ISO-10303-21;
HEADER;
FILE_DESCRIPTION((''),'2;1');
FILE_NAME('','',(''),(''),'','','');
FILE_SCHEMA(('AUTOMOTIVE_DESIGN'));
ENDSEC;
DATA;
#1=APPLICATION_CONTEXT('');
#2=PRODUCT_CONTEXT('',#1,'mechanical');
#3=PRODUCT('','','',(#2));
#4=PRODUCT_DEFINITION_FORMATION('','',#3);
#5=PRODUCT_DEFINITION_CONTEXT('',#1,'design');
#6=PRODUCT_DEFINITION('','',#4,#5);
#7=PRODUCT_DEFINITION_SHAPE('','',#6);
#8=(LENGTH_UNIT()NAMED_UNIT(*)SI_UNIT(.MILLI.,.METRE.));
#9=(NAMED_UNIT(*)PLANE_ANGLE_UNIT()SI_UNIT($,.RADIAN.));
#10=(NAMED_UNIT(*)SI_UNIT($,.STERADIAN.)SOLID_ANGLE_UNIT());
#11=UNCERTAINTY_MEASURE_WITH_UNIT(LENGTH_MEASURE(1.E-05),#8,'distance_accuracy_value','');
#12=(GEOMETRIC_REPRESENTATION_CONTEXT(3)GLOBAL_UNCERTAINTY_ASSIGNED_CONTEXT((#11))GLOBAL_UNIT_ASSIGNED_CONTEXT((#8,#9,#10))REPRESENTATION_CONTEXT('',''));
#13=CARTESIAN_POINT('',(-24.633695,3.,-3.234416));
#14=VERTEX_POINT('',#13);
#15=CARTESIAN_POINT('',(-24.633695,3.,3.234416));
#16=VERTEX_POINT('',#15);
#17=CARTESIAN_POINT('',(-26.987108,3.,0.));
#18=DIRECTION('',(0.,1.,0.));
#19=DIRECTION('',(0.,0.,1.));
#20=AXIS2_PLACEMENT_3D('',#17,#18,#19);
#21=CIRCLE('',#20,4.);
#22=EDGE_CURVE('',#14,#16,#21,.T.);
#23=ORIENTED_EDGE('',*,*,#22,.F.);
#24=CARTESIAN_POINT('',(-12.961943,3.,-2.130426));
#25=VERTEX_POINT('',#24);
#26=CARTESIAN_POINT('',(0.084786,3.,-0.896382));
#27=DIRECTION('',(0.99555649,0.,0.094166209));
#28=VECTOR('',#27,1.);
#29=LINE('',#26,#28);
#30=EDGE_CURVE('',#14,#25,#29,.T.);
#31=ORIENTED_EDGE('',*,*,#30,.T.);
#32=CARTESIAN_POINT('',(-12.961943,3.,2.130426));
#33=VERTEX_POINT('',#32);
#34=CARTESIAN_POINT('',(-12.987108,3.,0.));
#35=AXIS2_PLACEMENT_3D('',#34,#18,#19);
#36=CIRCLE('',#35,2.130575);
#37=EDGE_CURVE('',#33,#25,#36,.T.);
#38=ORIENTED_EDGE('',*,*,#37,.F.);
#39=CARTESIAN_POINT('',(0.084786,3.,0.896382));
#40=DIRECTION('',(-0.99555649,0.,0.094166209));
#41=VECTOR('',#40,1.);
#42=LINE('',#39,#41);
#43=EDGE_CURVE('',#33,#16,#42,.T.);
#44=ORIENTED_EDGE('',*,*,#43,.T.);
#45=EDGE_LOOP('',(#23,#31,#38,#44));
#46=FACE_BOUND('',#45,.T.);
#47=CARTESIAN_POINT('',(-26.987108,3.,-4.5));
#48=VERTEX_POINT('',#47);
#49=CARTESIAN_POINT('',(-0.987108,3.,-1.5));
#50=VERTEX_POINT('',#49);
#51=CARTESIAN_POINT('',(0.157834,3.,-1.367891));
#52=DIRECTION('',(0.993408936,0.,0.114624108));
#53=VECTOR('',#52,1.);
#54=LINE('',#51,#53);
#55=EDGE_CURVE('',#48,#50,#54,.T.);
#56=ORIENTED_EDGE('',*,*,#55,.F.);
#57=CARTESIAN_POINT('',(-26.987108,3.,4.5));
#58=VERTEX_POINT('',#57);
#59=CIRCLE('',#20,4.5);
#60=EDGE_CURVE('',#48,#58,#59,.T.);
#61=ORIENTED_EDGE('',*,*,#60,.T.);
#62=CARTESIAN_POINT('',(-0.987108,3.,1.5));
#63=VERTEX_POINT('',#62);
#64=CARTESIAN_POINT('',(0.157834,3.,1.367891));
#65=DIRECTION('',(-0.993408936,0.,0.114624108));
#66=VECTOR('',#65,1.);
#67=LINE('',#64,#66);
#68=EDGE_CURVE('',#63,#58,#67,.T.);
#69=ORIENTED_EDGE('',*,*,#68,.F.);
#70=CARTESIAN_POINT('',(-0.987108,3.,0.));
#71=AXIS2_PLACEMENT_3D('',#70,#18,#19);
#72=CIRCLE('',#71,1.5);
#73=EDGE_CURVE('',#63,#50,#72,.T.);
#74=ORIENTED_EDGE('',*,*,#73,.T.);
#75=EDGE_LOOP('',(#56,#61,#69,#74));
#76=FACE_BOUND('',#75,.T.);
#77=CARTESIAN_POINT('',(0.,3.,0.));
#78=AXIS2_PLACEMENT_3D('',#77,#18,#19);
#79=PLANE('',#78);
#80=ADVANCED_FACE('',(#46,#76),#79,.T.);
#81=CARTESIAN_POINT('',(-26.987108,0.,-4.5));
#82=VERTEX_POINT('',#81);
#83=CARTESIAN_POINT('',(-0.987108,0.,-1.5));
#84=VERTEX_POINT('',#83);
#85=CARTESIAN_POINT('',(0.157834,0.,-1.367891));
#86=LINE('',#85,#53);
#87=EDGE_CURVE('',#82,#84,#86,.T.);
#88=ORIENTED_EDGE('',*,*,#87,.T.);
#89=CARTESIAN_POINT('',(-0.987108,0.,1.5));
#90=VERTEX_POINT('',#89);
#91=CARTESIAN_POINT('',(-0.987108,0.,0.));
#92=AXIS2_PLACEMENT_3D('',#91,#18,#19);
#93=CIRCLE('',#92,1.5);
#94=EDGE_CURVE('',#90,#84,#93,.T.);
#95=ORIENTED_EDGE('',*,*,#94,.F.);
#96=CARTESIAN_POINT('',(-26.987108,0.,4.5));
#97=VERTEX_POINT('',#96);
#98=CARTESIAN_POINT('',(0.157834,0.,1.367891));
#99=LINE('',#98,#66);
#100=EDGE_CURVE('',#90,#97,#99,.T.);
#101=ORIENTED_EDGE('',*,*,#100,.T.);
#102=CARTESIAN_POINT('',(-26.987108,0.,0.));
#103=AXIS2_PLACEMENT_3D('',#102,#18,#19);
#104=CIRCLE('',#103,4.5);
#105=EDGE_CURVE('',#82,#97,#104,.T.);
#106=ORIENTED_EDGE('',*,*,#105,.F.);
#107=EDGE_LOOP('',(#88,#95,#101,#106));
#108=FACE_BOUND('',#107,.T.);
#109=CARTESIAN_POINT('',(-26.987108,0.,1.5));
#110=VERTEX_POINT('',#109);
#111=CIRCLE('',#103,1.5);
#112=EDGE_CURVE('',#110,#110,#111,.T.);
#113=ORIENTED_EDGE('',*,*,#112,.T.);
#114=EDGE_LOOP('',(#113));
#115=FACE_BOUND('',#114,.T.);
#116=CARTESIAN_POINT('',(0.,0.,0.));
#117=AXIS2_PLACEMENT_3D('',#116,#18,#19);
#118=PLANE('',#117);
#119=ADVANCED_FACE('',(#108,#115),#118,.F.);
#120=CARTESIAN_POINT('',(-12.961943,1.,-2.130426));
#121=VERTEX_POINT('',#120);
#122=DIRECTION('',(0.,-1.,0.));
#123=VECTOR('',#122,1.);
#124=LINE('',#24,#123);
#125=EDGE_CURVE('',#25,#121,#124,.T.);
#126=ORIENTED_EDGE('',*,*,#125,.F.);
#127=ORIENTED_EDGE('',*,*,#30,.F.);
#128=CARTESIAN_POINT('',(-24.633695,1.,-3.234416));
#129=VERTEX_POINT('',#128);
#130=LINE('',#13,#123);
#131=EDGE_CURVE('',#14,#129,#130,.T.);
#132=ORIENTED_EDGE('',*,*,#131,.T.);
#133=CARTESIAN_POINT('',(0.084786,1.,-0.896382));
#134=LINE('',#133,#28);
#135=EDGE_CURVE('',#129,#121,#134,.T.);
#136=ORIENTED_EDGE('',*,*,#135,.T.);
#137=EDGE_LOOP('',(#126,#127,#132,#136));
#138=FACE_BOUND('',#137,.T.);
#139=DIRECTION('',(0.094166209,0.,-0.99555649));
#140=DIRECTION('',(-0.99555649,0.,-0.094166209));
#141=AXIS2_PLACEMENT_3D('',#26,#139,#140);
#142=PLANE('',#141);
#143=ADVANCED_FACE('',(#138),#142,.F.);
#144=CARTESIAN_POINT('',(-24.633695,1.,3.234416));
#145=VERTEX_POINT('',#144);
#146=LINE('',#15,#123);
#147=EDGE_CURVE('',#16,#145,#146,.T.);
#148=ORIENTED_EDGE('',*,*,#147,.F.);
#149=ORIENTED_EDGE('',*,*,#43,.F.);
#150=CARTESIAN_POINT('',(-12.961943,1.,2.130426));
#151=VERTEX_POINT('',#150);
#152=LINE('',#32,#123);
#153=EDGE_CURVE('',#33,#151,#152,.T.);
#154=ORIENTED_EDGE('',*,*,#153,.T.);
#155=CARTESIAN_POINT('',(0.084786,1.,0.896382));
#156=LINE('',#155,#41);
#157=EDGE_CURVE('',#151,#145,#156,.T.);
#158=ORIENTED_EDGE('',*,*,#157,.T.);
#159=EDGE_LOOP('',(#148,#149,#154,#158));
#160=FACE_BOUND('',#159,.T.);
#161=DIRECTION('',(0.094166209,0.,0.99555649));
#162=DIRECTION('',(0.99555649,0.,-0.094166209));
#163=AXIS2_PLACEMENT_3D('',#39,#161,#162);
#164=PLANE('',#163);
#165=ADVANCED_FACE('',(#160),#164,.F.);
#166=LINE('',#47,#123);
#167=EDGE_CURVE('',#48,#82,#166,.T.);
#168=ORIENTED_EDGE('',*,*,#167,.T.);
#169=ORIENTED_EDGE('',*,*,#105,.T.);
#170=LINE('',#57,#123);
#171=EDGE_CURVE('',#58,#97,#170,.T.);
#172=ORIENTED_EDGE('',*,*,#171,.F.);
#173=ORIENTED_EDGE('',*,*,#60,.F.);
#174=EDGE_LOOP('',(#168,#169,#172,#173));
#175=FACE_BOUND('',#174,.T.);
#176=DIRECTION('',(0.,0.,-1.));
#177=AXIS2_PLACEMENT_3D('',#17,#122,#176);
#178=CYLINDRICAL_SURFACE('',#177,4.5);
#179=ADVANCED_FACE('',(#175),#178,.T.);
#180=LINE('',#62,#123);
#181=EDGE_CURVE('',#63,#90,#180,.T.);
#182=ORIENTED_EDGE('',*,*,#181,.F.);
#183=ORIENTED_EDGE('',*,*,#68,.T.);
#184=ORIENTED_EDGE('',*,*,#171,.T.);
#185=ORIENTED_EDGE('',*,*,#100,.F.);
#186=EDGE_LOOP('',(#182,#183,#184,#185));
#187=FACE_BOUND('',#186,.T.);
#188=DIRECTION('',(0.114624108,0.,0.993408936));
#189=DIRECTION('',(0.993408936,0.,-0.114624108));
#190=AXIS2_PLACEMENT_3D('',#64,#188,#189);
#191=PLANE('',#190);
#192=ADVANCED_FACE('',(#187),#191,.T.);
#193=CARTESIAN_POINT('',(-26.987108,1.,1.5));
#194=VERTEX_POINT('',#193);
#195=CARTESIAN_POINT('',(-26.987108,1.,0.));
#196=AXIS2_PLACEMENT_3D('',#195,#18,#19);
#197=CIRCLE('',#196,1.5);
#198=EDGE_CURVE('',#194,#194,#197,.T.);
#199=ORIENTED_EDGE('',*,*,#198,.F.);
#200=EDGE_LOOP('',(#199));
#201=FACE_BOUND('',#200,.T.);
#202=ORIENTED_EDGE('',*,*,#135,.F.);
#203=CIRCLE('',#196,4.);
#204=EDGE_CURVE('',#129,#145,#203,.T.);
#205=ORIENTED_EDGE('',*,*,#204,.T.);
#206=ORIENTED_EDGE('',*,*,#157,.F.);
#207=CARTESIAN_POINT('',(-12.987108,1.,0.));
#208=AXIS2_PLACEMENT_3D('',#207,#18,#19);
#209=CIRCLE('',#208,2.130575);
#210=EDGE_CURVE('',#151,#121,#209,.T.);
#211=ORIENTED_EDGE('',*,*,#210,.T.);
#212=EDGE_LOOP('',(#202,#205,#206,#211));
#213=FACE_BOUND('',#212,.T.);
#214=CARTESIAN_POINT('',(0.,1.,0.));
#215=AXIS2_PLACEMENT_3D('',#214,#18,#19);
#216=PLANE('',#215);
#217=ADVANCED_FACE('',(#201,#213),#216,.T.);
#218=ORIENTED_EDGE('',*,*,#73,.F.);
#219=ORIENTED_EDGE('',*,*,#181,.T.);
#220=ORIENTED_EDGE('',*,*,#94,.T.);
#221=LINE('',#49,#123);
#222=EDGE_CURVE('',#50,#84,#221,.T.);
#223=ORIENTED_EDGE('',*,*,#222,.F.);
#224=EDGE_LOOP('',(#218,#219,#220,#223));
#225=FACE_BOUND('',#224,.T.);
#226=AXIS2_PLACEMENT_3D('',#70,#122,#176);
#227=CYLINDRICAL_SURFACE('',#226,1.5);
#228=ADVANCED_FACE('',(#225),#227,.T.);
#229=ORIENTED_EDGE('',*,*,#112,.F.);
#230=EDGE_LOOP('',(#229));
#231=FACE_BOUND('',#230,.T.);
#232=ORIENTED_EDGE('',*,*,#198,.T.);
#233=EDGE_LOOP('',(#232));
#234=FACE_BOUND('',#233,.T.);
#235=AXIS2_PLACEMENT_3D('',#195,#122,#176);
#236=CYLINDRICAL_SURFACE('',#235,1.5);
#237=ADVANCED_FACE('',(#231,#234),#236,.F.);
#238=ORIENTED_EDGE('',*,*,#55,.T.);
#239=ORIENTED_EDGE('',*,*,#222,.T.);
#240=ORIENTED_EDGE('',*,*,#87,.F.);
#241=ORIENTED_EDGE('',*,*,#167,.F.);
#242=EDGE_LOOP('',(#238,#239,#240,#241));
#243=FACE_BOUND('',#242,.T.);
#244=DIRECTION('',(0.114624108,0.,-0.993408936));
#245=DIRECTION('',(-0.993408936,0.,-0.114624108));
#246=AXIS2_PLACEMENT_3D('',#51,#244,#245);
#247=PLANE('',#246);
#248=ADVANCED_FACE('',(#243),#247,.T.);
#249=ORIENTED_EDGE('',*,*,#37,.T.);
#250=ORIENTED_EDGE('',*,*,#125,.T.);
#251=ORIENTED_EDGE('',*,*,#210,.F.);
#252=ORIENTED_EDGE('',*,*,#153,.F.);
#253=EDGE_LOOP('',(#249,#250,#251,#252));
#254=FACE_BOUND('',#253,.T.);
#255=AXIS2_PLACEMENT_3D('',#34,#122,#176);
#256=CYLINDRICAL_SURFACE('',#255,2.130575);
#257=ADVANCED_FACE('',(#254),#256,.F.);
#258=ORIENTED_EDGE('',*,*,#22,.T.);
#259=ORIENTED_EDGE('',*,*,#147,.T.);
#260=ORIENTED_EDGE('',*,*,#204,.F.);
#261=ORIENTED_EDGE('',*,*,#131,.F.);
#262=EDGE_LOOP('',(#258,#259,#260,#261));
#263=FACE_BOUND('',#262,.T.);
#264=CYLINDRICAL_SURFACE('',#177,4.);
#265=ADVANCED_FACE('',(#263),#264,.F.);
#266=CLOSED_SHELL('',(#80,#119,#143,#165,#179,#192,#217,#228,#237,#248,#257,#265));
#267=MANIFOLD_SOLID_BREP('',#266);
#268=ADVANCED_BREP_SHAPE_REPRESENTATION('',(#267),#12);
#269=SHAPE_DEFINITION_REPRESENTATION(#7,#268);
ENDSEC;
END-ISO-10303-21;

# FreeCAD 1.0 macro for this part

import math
import FreeCAD as App
import Part
import Sketcher

V = App.Vector

doc = App.newDocument("Part")
params = doc.addObject("Spreadsheet::Sheet", "Params")
for row, (alias, value) in enumerate([
    ("sketch1_diameter", "3 mm"),
    ("sketch1_radius", "4 mm"),
    ("pad1_length", "1 mm"),
    ("sketch2_radius", "4 mm"),
    ("sketch2_radius2", "4.5 mm"),
    ("sketch2_radius3", "1.5 mm"),
    ("pad2_length", "3 mm"),
], start=1):
    params.set(f"A{row}", alias)
    params.set(f"B{row}", "=" + value)
    params.setAlias(f"B{row}", alias)

body = doc.addObject("PartDesign::Body", "Body")

# Sketch on XZ plane
sketch1 = body.newObject("Sketcher::SketchObject", "Sketch")
sketch1.AttachmentSupport = (doc.getObject("XZ_Plane"), [""])
sketch1.MapMode = "FlatFace"
sketch1.addGeometry([
    Part.LineSegment(V(-24.633695, 3.234416, 0), V(-12.961943, 2.130426, 0)),  # 0
    Part.ArcOfCircle(Part.Circle(V(-12.987108, 0, 0), V(0, 0, 1), 2.130575), math.radians(-89.323235), math.radians(89.323235)),  # 1
    Part.LineSegment(V(-12.961943, -2.130426, 0), V(-24.633695, -3.234416, 0)),  # 2
    Part.ArcOfCircle(Part.Circle(V(-26.987108, 0, 0), V(0, 0, 1), 4), math.radians(53.959771), math.radians(306.040229)),  # 3
    Part.Circle(V(-26.987108, 0, 0), V(0, 0, 1), 1.5),  # 4
], False)
sketch1.addConstraint([
    Sketcher.Constraint("Coincident", 0, 2, 1, 2),
    Sketcher.Constraint("Coincident", 1, 1, 2, 1),
    Sketcher.Constraint("Coincident", 2, 2, 3, 2),
    Sketcher.Constraint("Coincident", 3, 1, 0, 1),
    Sketcher.Constraint("Coincident", 4, 3, 3, 3),
    Sketcher.Constraint("Symmetric", 0, 2, 1, 1, -1),
    Sketcher.Constraint("Symmetric", 2, 2, 3, 1, -1),
    Sketcher.Constraint("Diameter", 4, 3.0),
    Sketcher.Constraint("Radius", 3, 4.0),
    Sketcher.Constraint("DistanceX", 3, 3, 1, 3, 14.0),
    Sketcher.Constraint("Radius", 1, 2.130575),
    Sketcher.Constraint("DistanceY", 2, 2, 1, 1, 1.10399),
    Sketcher.Constraint("Distance", 0, 11.723848),
    Sketcher.Constraint("DistanceX", 1, 3, -1, 1, 12.987108),
])
sketch1.setExpression("Constraints[7]", "Params.sketch1_diameter")
sketch1.setExpression("Constraints[8]", "Params.sketch1_radius")
pad1 = body.newObject("PartDesign::Pad", "Pad")
pad1.Profile = sketch1
pad1.setExpression("Length", "Params.pad1_length")
pad1.Reversed = True

# Sketch on XZ plane
sketch2 = body.newObject("Sketcher::SketchObject", "Sketch001")
sketch2.AttachmentSupport = (doc.getObject("XZ_Plane"), [""])
sketch2.MapMode = "FlatFace"
sketch2.addGeometry([
    Part.ArcOfCircle(Part.Circle(V(-26.987108, 0, 0), V(0, 0, 1), 4.5), math.radians(90), math.radians(270)),  # 0
    Part.LineSegment(V(-26.987108, 4.5, 0), V(-0.987108, 1.5, 0)),  # 1
    Part.ArcOfCircle(Part.Circle(V(-0.987108, 0, 0), V(0, 0, 1), 1.5), math.radians(-90), math.radians(90)),  # 2
    Part.LineSegment(V(-0.987108, -1.5, 0), V(-26.987108, -4.5, 0)),  # 3
    Part.ArcOfCircle(Part.Circle(V(-26.987108, 0, 0), V(0, 0, 1), 4), math.radians(53.959771), math.radians(306.040229)),  # 4
    Part.LineSegment(V(-24.633695, -3.234416, 0), V(-12.961943, -2.130426, 0)),  # 5
    Part.ArcOfCircle(Part.Circle(V(-12.987108, 0, 0), V(0, 0, 1), 2.130575), math.radians(-89.323235), math.radians(89.323235)),  # 6
    Part.LineSegment(V(-12.961943, 2.130426, 0), V(-24.633695, 3.234416, 0)),  # 7
], False)
sketch2.addConstraint([
    Sketcher.Constraint("Coincident", 0, 1, 1, 1),
    Sketcher.Constraint("Coincident", 1, 2, 2, 2),
    Sketcher.Constraint("Coincident", 2, 1, 3, 1),
    Sketcher.Constraint("Coincident", 3, 2, 0, 2),
    Sketcher.Constraint("Coincident", 4, 2, 5, 1),
    Sketcher.Constraint("Coincident", 5, 2, 6, 1),
    Sketcher.Constraint("Coincident", 6, 2, 7, 1),
    Sketcher.Constraint("Coincident", 7, 2, 4, 1),
    Sketcher.Constraint("Coincident", 4, 3, 0, 3),
    Sketcher.Constraint("Symmetric", 1, 2, 2, 1, -1),
    Sketcher.Constraint("Symmetric", 0, 1, 3, 2, -1),
    Sketcher.Constraint("Symmetric", 5, 2, 6, 2, -1),
    Sketcher.Constraint("Vertical", 4, 3, 0, 1),
    Sketcher.Constraint("Vertical", 2, 3, 1, 2),
    Sketcher.Constraint("Vertical", 4, 2, 7, 2),
    Sketcher.Constraint("Radius", 4, 4.0),
    Sketcher.Constraint("Radius", 0, 4.5),
    Sketcher.Constraint("Radius", 2, 1.5),
    Sketcher.Constraint("DistanceX", 0, 3, 2, 3, 26.0),
    Sketcher.Constraint("DistanceX", 6, 3, 2, 3, 12.0),
    Sketcher.Constraint("Radius", 6, 2.130575),
    Sketcher.Constraint("DistanceY", 4, 2, 5, 2, 1.10399),
    Sketcher.Constraint("Distance", 5, 11.723848),
    Sketcher.Constraint("DistanceX", 0, 3, -1, 1, 26.987108),
])
sketch2.setExpression("Constraints[15]", "Params.sketch2_radius")
sketch2.setExpression("Constraints[16]", "Params.sketch2_radius2")
sketch2.setExpression("Constraints[17]", "Params.sketch2_radius3")
pad2 = body.newObject("PartDesign::Pad", "Pad001")
pad2.Profile = sketch2
pad2.setExpression("Length", "Params.pad2_length")
pad2.Reversed = True

doc.recompute()
